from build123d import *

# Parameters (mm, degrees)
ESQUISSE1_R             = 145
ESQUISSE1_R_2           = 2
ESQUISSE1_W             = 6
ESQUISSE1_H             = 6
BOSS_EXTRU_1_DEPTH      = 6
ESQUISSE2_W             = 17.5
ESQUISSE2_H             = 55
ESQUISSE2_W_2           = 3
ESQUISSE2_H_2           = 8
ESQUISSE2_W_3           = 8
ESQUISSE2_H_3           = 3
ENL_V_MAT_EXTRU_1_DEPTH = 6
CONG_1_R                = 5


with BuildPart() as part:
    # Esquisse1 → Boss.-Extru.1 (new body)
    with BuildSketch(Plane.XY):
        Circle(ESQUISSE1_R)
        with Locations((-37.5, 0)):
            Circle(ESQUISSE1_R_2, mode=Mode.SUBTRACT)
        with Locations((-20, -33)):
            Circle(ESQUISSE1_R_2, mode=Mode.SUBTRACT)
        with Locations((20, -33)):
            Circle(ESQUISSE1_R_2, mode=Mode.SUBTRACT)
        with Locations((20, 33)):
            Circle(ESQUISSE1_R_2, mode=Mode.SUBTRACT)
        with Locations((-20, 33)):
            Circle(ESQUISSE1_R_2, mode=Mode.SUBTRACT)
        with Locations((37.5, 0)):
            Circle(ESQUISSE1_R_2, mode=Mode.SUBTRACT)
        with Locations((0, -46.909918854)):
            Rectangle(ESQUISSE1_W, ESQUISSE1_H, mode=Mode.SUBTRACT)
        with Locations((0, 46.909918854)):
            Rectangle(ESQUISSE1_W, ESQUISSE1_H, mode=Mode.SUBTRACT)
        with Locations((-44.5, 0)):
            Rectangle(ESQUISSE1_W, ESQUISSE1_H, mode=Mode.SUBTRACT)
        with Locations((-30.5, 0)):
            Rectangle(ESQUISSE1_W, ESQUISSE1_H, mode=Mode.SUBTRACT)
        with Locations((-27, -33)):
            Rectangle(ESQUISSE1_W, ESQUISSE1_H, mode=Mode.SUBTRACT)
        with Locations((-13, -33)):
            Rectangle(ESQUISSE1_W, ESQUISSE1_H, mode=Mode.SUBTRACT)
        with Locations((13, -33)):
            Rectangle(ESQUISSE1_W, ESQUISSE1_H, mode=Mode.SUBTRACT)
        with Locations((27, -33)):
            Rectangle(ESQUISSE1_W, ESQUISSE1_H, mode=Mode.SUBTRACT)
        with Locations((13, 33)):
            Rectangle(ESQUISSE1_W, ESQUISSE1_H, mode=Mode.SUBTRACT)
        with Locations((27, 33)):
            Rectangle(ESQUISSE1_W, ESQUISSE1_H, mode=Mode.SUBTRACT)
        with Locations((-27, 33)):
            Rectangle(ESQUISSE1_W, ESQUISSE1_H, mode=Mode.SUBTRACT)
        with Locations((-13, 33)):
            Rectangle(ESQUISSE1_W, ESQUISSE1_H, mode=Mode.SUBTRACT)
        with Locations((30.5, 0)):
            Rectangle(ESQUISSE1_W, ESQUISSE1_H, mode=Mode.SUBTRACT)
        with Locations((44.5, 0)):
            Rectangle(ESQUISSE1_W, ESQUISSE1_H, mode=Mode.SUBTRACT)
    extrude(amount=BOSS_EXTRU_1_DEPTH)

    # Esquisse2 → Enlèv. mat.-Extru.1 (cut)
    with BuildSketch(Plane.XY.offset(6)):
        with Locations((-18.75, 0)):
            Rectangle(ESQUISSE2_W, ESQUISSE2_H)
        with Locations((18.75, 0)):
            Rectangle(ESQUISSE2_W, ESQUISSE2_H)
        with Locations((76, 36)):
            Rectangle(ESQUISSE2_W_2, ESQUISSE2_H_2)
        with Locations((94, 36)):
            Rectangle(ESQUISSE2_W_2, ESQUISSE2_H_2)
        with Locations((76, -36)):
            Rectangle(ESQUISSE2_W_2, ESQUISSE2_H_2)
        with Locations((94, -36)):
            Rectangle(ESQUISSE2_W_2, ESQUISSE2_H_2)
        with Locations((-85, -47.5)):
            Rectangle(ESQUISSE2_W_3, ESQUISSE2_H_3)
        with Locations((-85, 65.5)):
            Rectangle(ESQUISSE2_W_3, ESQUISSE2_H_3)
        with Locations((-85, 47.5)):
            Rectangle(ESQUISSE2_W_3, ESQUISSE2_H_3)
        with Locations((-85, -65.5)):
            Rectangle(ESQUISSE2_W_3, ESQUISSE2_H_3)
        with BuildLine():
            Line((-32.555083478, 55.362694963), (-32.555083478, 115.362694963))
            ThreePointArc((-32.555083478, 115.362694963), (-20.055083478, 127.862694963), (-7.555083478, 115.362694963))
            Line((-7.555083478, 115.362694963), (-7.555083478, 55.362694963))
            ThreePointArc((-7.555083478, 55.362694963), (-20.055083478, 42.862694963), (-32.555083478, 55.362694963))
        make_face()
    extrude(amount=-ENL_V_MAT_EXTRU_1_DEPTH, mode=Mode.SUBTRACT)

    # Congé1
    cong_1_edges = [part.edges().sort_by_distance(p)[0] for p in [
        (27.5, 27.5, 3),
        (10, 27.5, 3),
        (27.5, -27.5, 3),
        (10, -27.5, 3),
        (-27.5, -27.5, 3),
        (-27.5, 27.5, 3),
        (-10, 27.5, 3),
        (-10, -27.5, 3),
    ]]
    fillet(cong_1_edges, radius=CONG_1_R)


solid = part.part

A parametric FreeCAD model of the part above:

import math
import FreeCAD as App
import Part
import Sketcher

V = App.Vector
Q = App.Units.Quantity


def edges_at(feature, points):
    """Names of the edges that pass closest to the given points."""
    edges = feature.Shape.Edges
    near = lambda p: min(range(len(edges)), key=lambda i: edges[i].distToShape(Part.Vertex(*p))[0])
    return sorted({f"Edge{near(p) + 1}" for p in points})

doc = App.newDocument("Part")
params = doc.addObject("Spreadsheet::Sheet", "Params")
for row, (alias, value) in enumerate([
    ("sketch1_diameter", "290 mm"),
    ("sketch1_diameter2", "4 mm"),
    ("sketch1_width", "6 mm"),
    ("pad1_length", "6 mm"),
    ("sketch2_radius", "12.5 mm"),
    ("sketch2_width", "3 mm"),
    ("sketch2_width2", "8 mm"),
    ("sketch2_height", "55 mm"),
    ("sketch2_height2", "60 mm"),
    ("pocket1_length", "6 mm"),
    ("fillet_radius", "5 mm"),
], start=1):
    params.set(f"A{row}", alias)
    params.set(f"B{row}", "=" + value)
    params.setAlias(f"B{row}", alias)

body = doc.addObject("PartDesign::Body", "Body")

sketch1 = body.newObject("Sketcher::SketchObject", "Sketch")
sketch1.AttachmentSupport = (doc.getObject("XY_Plane"), [""])
sketch1.MapMode = "FlatFace"
sketch1.addGeometry(Part.Circle(V(0, 0, 0), V(0, 0, 1), 145), False)
sketch1.addGeometry(Part.LineSegment(V(-24, -36, 0), V(-30, -36, 0)), False)
sketch1.addGeometry(Part.LineSegment(V(-30, -36, 0), V(-30, -30, 0)), False)
sketch1.addGeometry(Part.LineSegment(V(-30, -30, 0), V(-24, -30, 0)), False)
sketch1.addGeometry(Part.LineSegment(V(-24, -30, 0), V(-24, -36, 0)), False)
sketch1.addGeometry(Part.Circle(V(-20, -33, 0), V(0, 0, 1), 2), False)
sketch1.addGeometry(Part.LineSegment(V(-10, -36, 0), V(-16, -36, 0)), False)
sketch1.addGeometry(Part.LineSegment(V(-16, -36, 0), V(-16, -30, 0)), False)
sketch1.addGeometry(Part.LineSegment(V(-16, -30, 0), V(-10, -30, 0)), False)
sketch1.addGeometry(Part.LineSegment(V(-10, -30, 0), V(-10, -36, 0)), False)
sketch1.addGeometry(Part.LineSegment(V(3, -49.9, 0), V(-3, -49.9, 0)), False)
sketch1.addGeometry(Part.LineSegment(V(-3, -49.9, 0), V(-3, -43.9, 0)), False)
sketch1.addGeometry(Part.LineSegment(V(-3, -43.9, 0), V(3, -43.9, 0)), False)
sketch1.addGeometry(Part.LineSegment(V(3, -43.9, 0), V(3, -49.9, 0)), False)
sketch1.addGeometry(Part.LineSegment(V(16, -36, 0), V(10, -36, 0)), False)
sketch1.addGeometry(Part.LineSegment(V(10, -36, 0), V(10, -30, 0)), False)
sketch1.addGeometry(Part.LineSegment(V(10, -30, 0), V(16, -30, 0)), False)
sketch1.addGeometry(Part.LineSegment(V(16, -30, 0), V(16, -36, 0)), False)
sketch1.addGeometry(Part.Circle(V(20, -33, 0), V(0, 0, 1), 2), False)
sketch1.addGeometry(Part.LineSegment(V(30, -36, 0), V(24, -36, 0)), False)
sketch1.addGeometry(Part.LineSegment(V(24, -36, 0), V(24, -30, 0)), False)
sketch1.addGeometry(Part.LineSegment(V(24, -30, 0), V(30, -30, 0)), False)
sketch1.addGeometry(Part.LineSegment(V(30, -30, 0), V(30, -36, 0)), False)
sketch1.addGeometry(Part.LineSegment(V(-41.5, -3, 0), V(-47.5, -3, 0)), False)
sketch1.addGeometry(Part.LineSegment(V(-47.5, -3, 0), V(-47.5, 3, 0)), False)
sketch1.addGeometry(Part.LineSegment(V(-47.5, 3, 0), V(-41.5, 3, 0)), False)
sketch1.addGeometry(Part.LineSegment(V(-41.5, 3, 0), V(-41.5, -3, 0)), False)
sketch1.addGeometry(Part.Circle(V(-37.5, 0, 0), V(0, 0, 1), 2), False)
sketch1.addGeometry(Part.LineSegment(V(-27.5, -3, 0), V(-33.5, -3, 0)), False)
sketch1.addGeometry(Part.LineSegment(V(-33.5, -3, 0), V(-33.5, 3, 0)), False)
sketch1.addGeometry(Part.LineSegment(V(-33.5, 3, 0), V(-27.5, 3, 0)), False)
sketch1.addGeometry(Part.LineSegment(V(-27.5, 3, 0), V(-27.5, -3, 0)), False)
sketch1.addGeometry(Part.LineSegment(V(-24, 30, 0), V(-30, 30, 0)), False)
sketch1.addGeometry(Part.LineSegment(V(-30, 30, 0), V(-30, 36, 0)), False)
sketch1.addGeometry(Part.LineSegment(V(-30, 36, 0), V(-24, 36, 0)), False)
sketch1.addGeometry(Part.LineSegment(V(-24, 36, 0), V(-24, 30, 0)), False)
sketch1.addGeometry(Part.Circle(V(-20, 33, 0), V(0, 0, 1), 2), False)
sketch1.addGeometry(Part.LineSegment(V(-10, 30, 0), V(-16, 30, 0)), False)
sketch1.addGeometry(Part.LineSegment(V(-16, 30, 0), V(-16, 36, 0)), False)
sketch1.addGeometry(Part.LineSegment(V(-16, 36, 0), V(-10, 36, 0)), False)
sketch1.addGeometry(Part.LineSegment(V(-10, 36, 0), V(-10, 30, 0)), False)
sketch1.addGeometry(Part.LineSegment(V(33.5, -3, 0), V(27.5, -3, 0)), False)
sketch1.addGeometry(Part.LineSegment(V(27.5, -3, 0), V(27.5, 3, 0)), False)
sketch1.addGeometry(Part.LineSegment(V(27.5, 3, 0), V(33.5, 3, 0)), False)
sketch1.addGeometry(Part.LineSegment(V(33.5, 3, 0), V(33.5, -3, 0)), False)
sketch1.addGeometry(Part.Circle(V(37.5, 0, 0), V(0, 0, 1), 2), False)
sketch1.addGeometry(Part.LineSegment(V(47.5, -3, 0), V(41.5, -3, 0)), False)
sketch1.addGeometry(Part.LineSegment(V(41.5, -3, 0), V(41.5, 3, 0)), False)
sketch1.addGeometry(Part.LineSegment(V(41.5, 3, 0), V(47.5, 3, 0)), False)
sketch1.addGeometry(Part.LineSegment(V(47.5, 3, 0), V(47.5, -3, 0)), False)
sketch1.addGeometry(Part.LineSegment(V(16, 30, 0), V(10, 30, 0)), False)
sketch1.addGeometry(Part.LineSegment(V(10, 30, 0), V(10, 36, 0)), False)
sketch1.addGeometry(Part.LineSegment(V(10, 36, 0), V(16, 36, 0)), False)
sketch1.addGeometry(Part.LineSegment(V(16, 36, 0), V(16, 30, 0)), False)
sketch1.addGeometry(Part.Circle(V(20, 33, 0), V(0, 0, 1), 2), False)
sketch1.addGeometry(Part.LineSegment(V(3, 43.9, 0), V(-3, 43.9, 0)), False)
sketch1.addGeometry(Part.LineSegment(V(-3, 43.9, 0), V(-3, 49.9, 0)), False)
sketch1.addGeometry(Part.LineSegment(V(-3, 49.9, 0), V(3, 49.9, 0)), False)
sketch1.addGeometry(Part.LineSegment(V(3, 49.9, 0), V(3, 43.9, 0)), False)
sketch1.addGeometry(Part.LineSegment(V(30, 30, 0), V(24, 30, 0)), False)
sketch1.addGeometry(Part.LineSegment(V(24, 30, 0), V(24, 36, 0)), False)
sketch1.addGeometry(Part.LineSegment(V(24, 36, 0), V(30, 36, 0)), False)
sketch1.addGeometry(Part.LineSegment(V(30, 36, 0), V(30, 30, 0)), False)
sketch1.addConstraint(Sketcher.Constraint("Coincident", 1, 2, 2, 1))
sketch1.addConstraint(Sketcher.Constraint("Coincident", 2, 2, 3, 1))
sketch1.addConstraint(Sketcher.Constraint("Coincident", 3, 2, 4, 1))
sketch1.addConstraint(Sketcher.Constraint("Coincident", 4, 2, 1, 1))
sketch1.addConstraint(Sketcher.Constraint("Coincident", 6, 2, 7, 1))
sketch1.addConstraint(Sketcher.Constraint("Coincident", 7, 2, 8, 1))
sketch1.addConstraint(Sketcher.Constraint("Coincident", 8, 2, 9, 1))
sketch1.addConstraint(Sketcher.Constraint("Coincident", 9, 2, 6, 1))
sketch1.addConstraint(Sketcher.Constraint("Coincident", 10, 2, 11, 1))
sketch1.addConstraint(Sketcher.Constraint("Coincident", 11, 2, 12, 1))
sketch1.addConstraint(Sketcher.Constraint("Coincident", 12, 2, 13, 1))
sketch1.addConstraint(Sketcher.Constraint("Coincident", 13, 2, 10, 1))
sketch1.addConstraint(Sketcher.Constraint("Coincident", 14, 2, 15, 1))
sketch1.addConstraint(Sketcher.Constraint("Coincident", 15, 2, 16, 1))
sketch1.addConstraint(Sketcher.Constraint("Coincident", 16, 2, 17, 1))
sketch1.addConstraint(Sketcher.Constraint("Coincident", 17, 2, 14, 1))
sketch1.addConstraint(Sketcher.Constraint("Coincident", 19, 2, 20, 1))
sketch1.addConstraint(Sketcher.Constraint("Coincident", 20, 2, 21, 1))
sketch1.addConstraint(Sketcher.Constraint("Coincident", 21, 2, 22, 1))
sketch1.addConstraint(Sketcher.Constraint("Coincident", 22, 2, 19, 1))
sketch1.addConstraint(Sketcher.Constraint("Coincident", 23, 2, 24, 1))
sketch1.addConstraint(Sketcher.Constraint("Coincident", 24, 2, 25, 1))
sketch1.addConstraint(Sketcher.Constraint("Coincident", 25, 2, 26, 1))
sketch1.addConstraint(Sketcher.Constraint("Coincident", 26, 2, 23, 1))
sketch1.addConstraint(Sketcher.Constraint("Coincident", 28, 2, 29, 1))
sketch1.addConstraint(Sketcher.Constraint("Coincident", 29, 2, 30, 1))
sketch1.addConstraint(Sketcher.Constraint("Coincident", 30, 2, 31, 1))
sketch1.addConstraint(Sketcher.Constraint("Coincident", 31, 2, 28, 1))
sketch1.addConstraint(Sketcher.Constraint("Coincident", 32, 2, 33, 1))
sketch1.addConstraint(Sketcher.Constraint("Coincident", 33, 2, 34, 1))
sketch1.addConstraint(Sketcher.Constraint("Coincident", 34, 2, 35, 1))
sketch1.addConstraint(Sketcher.Constraint("Coincident", 35, 2, 32, 1))
sketch1.addConstraint(Sketcher.Constraint("Coincident", 37, 2, 38, 1))
sketch1.addConstraint(Sketcher.Constraint("Coincident", 38, 2, 39, 1))
sketch1.addConstraint(Sketcher.Constraint("Coincident", 39, 2, 40, 1))
sketch1.addConstraint(Sketcher.Constraint("Coincident", 40, 2, 37, 1))
sketch1.addConstraint(Sketcher.Constraint("Coincident", 41, 2, 42, 1))
sketch1.addConstraint(Sketcher.Constraint("Coincident", 42, 2, 43, 1))
sketch1.addConstraint(Sketcher.Constraint("Coincident", 43, 2, 44, 1))
sketch1.addConstraint(Sketcher.Constraint("Coincident", 44, 2, 41, 1))
sketch1.addConstraint(Sketcher.Constraint("Coincident", 46, 2, 47, 1))
sketch1.addConstraint(Sketcher.Constraint("Coincident", 47, 2, 48, 1))
sketch1.addConstraint(Sketcher.Constraint("Coincident", 48, 2, 49, 1))
sketch1.addConstraint(Sketcher.Constraint("Coincident", 49, 2, 46, 1))
sketch1.addConstraint(Sketcher.Constraint("Coincident", 50, 2, 51, 1))
sketch1.addConstraint(Sketcher.Constraint("Coincident", 51, 2, 52, 1))
sketch1.addConstraint(Sketcher.Constraint("Coincident", 52, 2, 53, 1))
sketch1.addConstraint(Sketcher.Constraint("Coincident", 53, 2, 50, 1))
sketch1.addConstraint(Sketcher.Constraint("Coincident", 55, 2, 56, 1))
sketch1.addConstraint(Sketcher.Constraint("Coincident", 56, 2, 57, 1))
sketch1.addConstraint(Sketcher.Constraint("Coincident", 57, 2, 58, 1))
sketch1.addConstraint(Sketcher.Constraint("Coincident", 58, 2, 55, 1))
sketch1.addConstraint(Sketcher.Constraint("Coincident", 59, 2, 60, 1))
sketch1.addConstraint(Sketcher.Constraint("Coincident", 60, 2, 61, 1))
sketch1.addConstraint(Sketcher.Constraint("Coincident", 61, 2, 62, 1))
sketch1.addConstraint(Sketcher.Constraint("Coincident", 62, 2, 59, 1))
sketch1.addConstraint(Sketcher.Constraint("Horizontal", 1))
sketch1.addConstraint(Sketcher.Constraint("Vertical", 2))
sketch1.addConstraint(Sketcher.Constraint("Horizontal", 3))
sketch1.addConstraint(Sketcher.Constraint("Vertical", 4))
sketch1.addConstraint(Sketcher.Constraint("Horizontal", 6))
sketch1.addConstraint(Sketcher.Constraint("Vertical", 7))
sketch1.addConstraint(Sketcher.Constraint("Horizontal", 8))
sketch1.addConstraint(Sketcher.Constraint("Vertical", 9))
sketch1.addConstraint(Sketcher.Constraint("Horizontal", 10))
sketch1.addConstraint(Sketcher.Constraint("Vertical", 11))
sketch1.addConstraint(Sketcher.Constraint("Horizontal", 12))
sketch1.addConstraint(Sketcher.Constraint("Vertical", 13))
sketch1.addConstraint(Sketcher.Constraint("Horizontal", 14))
sketch1.addConstraint(Sketcher.Constraint("Vertical", 15))
sketch1.addConstraint(Sketcher.Constraint("Horizontal", 16))
sketch1.addConstraint(Sketcher.Constraint("Vertical", 17))
sketch1.addConstraint(Sketcher.Constraint("Horizontal", 19))
sketch1.addConstraint(Sketcher.Constraint("Vertical", 20))
sketch1.addConstraint(Sketcher.Constraint("Horizontal", 21))
sketch1.addConstraint(Sketcher.Constraint("Vertical", 22))
sketch1.addConstraint(Sketcher.Constraint("Horizontal", 23))
sketch1.addConstraint(Sketcher.Constraint("Vertical", 24))
sketch1.addConstraint(Sketcher.Constraint("Horizontal", 25))
sketch1.addConstraint(Sketcher.Constraint("Vertical", 26))
sketch1.addConstraint(Sketcher.Constraint("Horizontal", 28))
sketch1.addConstraint(Sketcher.Constraint("Vertical", 29))
sketch1.addConstraint(Sketcher.Constraint("Horizontal", 30))
sketch1.addConstraint(Sketcher.Constraint("Vertical", 31))
sketch1.addConstraint(Sketcher.Constraint("Horizontal", 32))
sketch1.addConstraint(Sketcher.Constraint("Vertical", 33))
sketch1.addConstraint(Sketcher.Constraint("Horizontal", 34))
sketch1.addConstraint(Sketcher.Constraint("Vertical", 35))
sketch1.addConstraint(Sketcher.Constraint("Horizontal", 37))
sketch1.addConstraint(Sketcher.Constraint("Vertical", 38))
sketch1.addConstraint(Sketcher.Constraint("Horizontal", 39))
sketch1.addConstraint(Sketcher.Constraint("Vertical", 40))
sketch1.addConstraint(Sketcher.Constraint("Horizontal", 41))
sketch1.addConstraint(Sketcher.Constraint("Vertical", 42))
sketch1.addConstraint(Sketcher.Constraint("Horizontal", 43))
sketch1.addConstraint(Sketcher.Constraint("Vertical", 44))
sketch1.addConstraint(Sketcher.Constraint("Horizontal", 46))
sketch1.addConstraint(Sketcher.Constraint("Vertical", 47))
sketch1.addConstraint(Sketcher.Constraint("Horizontal", 48))
sketch1.addConstraint(Sketcher.Constraint("Vertical", 49))
sketch1.addConstraint(Sketcher.Constraint("Horizontal", 50))
sketch1.addConstraint(Sketcher.Constraint("Vertical", 51))
sketch1.addConstraint(Sketcher.Constraint("Horizontal", 52))
sketch1.addConstraint(Sketcher.Constraint("Vertical", 53))
sketch1.addConstraint(Sketcher.Constraint("Horizontal", 55))
sketch1.addConstraint(Sketcher.Constraint("Vertical", 56))
sketch1.addConstraint(Sketcher.Constraint("Horizontal", 57))
sketch1.addConstraint(Sketcher.Constraint("Vertical", 58))
sketch1.addConstraint(Sketcher.Constraint("Horizontal", 59))
sketch1.addConstraint(Sketcher.Constraint("Vertical", 60))
sketch1.addConstraint(Sketcher.Constraint("Horizontal", 61))
sketch1.addConstraint(Sketcher.Constraint("Vertical", 62))
sketch1.addConstraint(Sketcher.Constraint("Coincident", 0, 3, -1, 1))
sketch1.addConstraint(Sketcher.Constraint("Equal", 5, 18))
sketch1.addConstraint(Sketcher.Constraint("Equal", 18, 27))
sketch1.addConstraint(Sketcher.Constraint("Equal", 27, 36))
sketch1.addConstraint(Sketcher.Constraint("Equal", 36, 45))
sketch1.addConstraint(Sketcher.Constraint("Equal", 45, 54))
sketch1.addConstraint(Sketcher.Constraint("Symmetric", 18, 3, 36, 3, -1, 1))
sketch1.addConstraint(Sketcher.Constraint("Symmetric", 27, 3, 45, 3, -1, 1))
sketch1.addConstraint(Sketcher.Constraint("Symmetric", 5, 3, 54, 3, -1, 1))
sketch1.addConstraint(Sketcher.Constraint("Symmetric", 21, 2, 32, 2, -1, 1))
sketch1.addConstraint(Sketcher.Constraint("Symmetric", 19, 2, 34, 2, -1, 1))
sketch1.addConstraint(Sketcher.Constraint("Symmetric", 16, 2, 37, 2, -1, 1))
sketch1.addConstraint(Sketcher.Constraint("Symmetric", 14, 2, 39, 2, -1, 1))
sketch1.addConstraint(Sketcher.Constraint("Symmetric", 30, 2, 41, 2, -1, 1))
sketch1.addConstraint(Sketcher.Constraint("Symmetric", 28, 2, 43, 2, -1, 1))
sketch1.addConstraint(Sketcher.Constraint("Symmetric", 25, 2, 46, 2, -1, 1))
sketch1.addConstraint(Sketcher.Constraint("Symmetric", 23, 2, 48, 2, -1, 1))
sketch1.addConstraint(Sketcher.Constraint("Symmetric", 8, 2, 50, 2, -1, 1))
sketch1.addConstraint(Sketcher.Constraint("Symmetric", 6, 2, 52, 2, -1, 1))
sketch1.addConstraint(Sketcher.Constraint("Symmetric", 12, 2, 55, 2, -1, 1))
sketch1.addConstraint(Sketcher.Constraint("Symmetric", 10, 2, 57, 2, -1, 1))
sketch1.addConstraint(Sketcher.Constraint("Symmetric", 3, 2, 59, 2, -1, 1))
sketch1.addConstraint(Sketcher.Constraint("Symmetric", 1, 2, 61, 2, -1, 1))
sketch1.addConstraint(Sketcher.Constraint("Symmetric", 5, 3, 18, 3, -2))
sketch1.addConstraint(Sketcher.Constraint("Symmetric", 9, 2, 14, 2, -2))
sketch1.addConstraint(Sketcher.Constraint("Symmetric", 7, 2, 16, 2, -2))
sketch1.addConstraint(Sketcher.Constraint("Symmetric", 4, 2, 19, 2, -2))
sketch1.addConstraint(Sketcher.Constraint("Symmetric", 2, 2, 21, 2, -2))
sketch1.addConstraint(Sketcher.Constraint("PointOnObject", 27, 3, -1))
sketch1.addConstraint(Sketcher.Constraint("Horizontal", 4, 2, 6, 2))
sketch1.addConstraint(Sketcher.Constraint("Horizontal", 3, 2, 7, 2))
sketch1.addConstraint(Sketcher.Constraint("Horizontal", 26, 2, 28, 2))
sketch1.addConstraint(Sketcher.Constraint("Horizontal", 25, 2, 29, 2))
sketch1.addConstraint(Sketcher.Constraint("Horizontal", 31, 2, 41, 2))
sketch1.addConstraint(Sketcher.Constraint("Vertical", 11, 2, 55, 2))
sketch1.addConstraint(Sketcher.Constraint("Equal", 3, 6))
sketch1.addConstraint(Sketcher.Constraint("Equal", 8, 10))
sketch1.addConstraint(Sketcher.Constraint("Equal", 21, 23))
sketch1.addConstraint(Sketcher.Constraint("Equal", 25, 28))
sketch1.addConstraint(Sketcher.Constraint("Equal", 61, 2))
sketch1.addConstraint(Sketcher.Constraint("Equal", 9, 11))
sketch1.addConstraint(Sketcher.Constraint("Equal", 22, 24))
sketch1.addConstraint(Sketcher.Constraint("Diameter", 0, Q("290 mm")))
sketch1.addConstraint(Sketcher.Constraint("Diameter", 5, Q("4 mm")))
sketch1.addConstraint(Sketcher.Constraint("DistanceX", 1, 2, 1, 1, Q("6 mm")))
sketch1.addConstraint(Sketcher.Constraint("DistanceX", 5, 3, -1, 1, Q("20 mm")))
sketch1.addConstraint(Sketcher.Constraint("DistanceY", 5, 3, -1, 1, Q("33 mm")))
sketch1.addConstraint(Sketcher.Constraint("DistanceX", 1, 2, -1, 1, Q("30 mm")))
sketch1.addConstraint(Sketcher.Constraint("DistanceY", 1, 2, -1, 1, Q("36 mm")))
sketch1.addConstraint(Sketcher.Constraint("DistanceX", 6, 2, -1, 1, Q("16 mm")))
sketch1.addConstraint(Sketcher.Constraint("DistanceX", 27, 3, -1, 1, Q("37.5 mm")))
sketch1.addConstraint(Sketcher.Constraint("DistanceX", 23, 2, -1, 1, Q("47.5 mm")))
sketch1.addConstraint(Sketcher.Constraint("DistanceX", 28, 2, -1, 1, Q("33.5 mm")))
sketch1.addConstraint(Sketcher.Constraint("DistanceY", 10, 2, -1, 1, Q("49.909919 mm")))
sketch1.setExpression("Constraints[154]", "Params.sketch1_diameter")
sketch1.setExpression("Constraints[155]", "Params.sketch1_diameter2")
sketch1.setExpression("Constraints[156]", "Params.sketch1_width")
pad1 = body.newObject("PartDesign::Pad", "Pad")
pad1.Profile = sketch1
pad1.setExpression("Length", "Params.pad1_length")

sketch2 = body.newObject("Sketcher::SketchObject", "Sketch001")
sketch2.AttachmentSupport = (doc.getObject("XY_Plane"), [""])
sketch2.MapMode = "FlatFace"
sketch2.AttachmentOffset = App.Placement(V(0, 0, 6), App.Rotation())
sketch2.addGeometry(Part.LineSegment(V(-27.5, 27.5, 0), V(-27.5, -27.5, 0)), False)
sketch2.addGeometry(Part.LineSegment(V(-27.5, -27.5, 0), V(-10, -27.5, 0)), False)
sketch2.addGeometry(Part.LineSegment(V(-10, -27.5, 0), V(-10, 27.5, 0)), False)
sketch2.addGeometry(Part.LineSegment(V(-10, 27.5, 0), V(-27.5, 27.5, 0)), False)
sketch2.addGeometry(Part.LineSegment(V(10, 27.5, 0), V(10, -27.5, 0)), False)
sketch2.addGeometry(Part.LineSegment(V(10, -27.5, 0), V(27.5, -27.5, 0)), False)
sketch2.addGeometry(Part.LineSegment(V(27.5, -27.5, 0), V(27.5, 27.5, 0)), False)
sketch2.addGeometry(Part.LineSegment(V(27.5, 27.5, 0), V(10, 27.5, 0)), False)
sketch2.addGeometry(Part.LineSegment(V(74.5, 40, 0), V(74.5, 32, 0)), False)
sketch2.addGeometry(Part.LineSegment(V(74.5, 32, 0), V(77.5, 32, 0)), False)
sketch2.addGeometry(Part.LineSegment(V(77.5, 32, 0), V(77.5, 40, 0)), False)
sketch2.addGeometry(Part.LineSegment(V(77.5, 40, 0), V(74.5, 40, 0)), False)
sketch2.addGeometry(Part.LineSegment(V(92.5, 40, 0), V(92.5, 32, 0)), False)
sketch2.addGeometry(Part.LineSegment(V(92.5, 32, 0), V(95.5, 32, 0)), False)
sketch2.addGeometry(Part.LineSegment(V(95.5, 32, 0), V(95.5, 40, 0)), False)
sketch2.addGeometry(Part.LineSegment(V(95.5, 40, 0), V(92.5, 40, 0)), False)
sketch2.addGeometry(Part.LineSegment(V(74.5, -32, 0), V(74.5, -40, 0)), False)
sketch2.addGeometry(Part.LineSegment(V(74.5, -40, 0), V(77.5, -40, 0)), False)
sketch2.addGeometry(Part.LineSegment(V(77.5, -40, 0), V(77.5, -32, 0)), False)
sketch2.addGeometry(Part.LineSegment(V(77.5, -32, 0), V(74.5, -32, 0)), False)
sketch2.addGeometry(Part.LineSegment(V(92.5, -32, 0), V(92.5, -40, 0)), False)
sketch2.addGeometry(Part.LineSegment(V(92.5, -40, 0), V(95.5, -40, 0)), False)
sketch2.addGeometry(Part.LineSegment(V(95.5, -40, 0), V(95.5, -32, 0)), False)
sketch2.addGeometry(Part.LineSegment(V(95.5, -32, 0), V(92.5, -32, 0)), False)
sketch2.addGeometry(Part.LineSegment(V(-89, -46, 0), V(-89, -49, 0)), False)
sketch2.addGeometry(Part.LineSegment(V(-89, -49, 0), V(-81, -49, 0)), False)
sketch2.addGeometry(Part.LineSegment(V(-81, -49, 0), V(-81, -46, 0)), False)
sketch2.addGeometry(Part.LineSegment(V(-81, -46, 0), V(-89, -46, 0)), False)
sketch2.addGeometry(Part.LineSegment(V(-89, 67, 0), V(-89, 64, 0)), False)
sketch2.addGeometry(Part.LineSegment(V(-89, 64, 0), V(-81, 64, 0)), False)
sketch2.addGeometry(Part.LineSegment(V(-81, 64, 0), V(-81, 67, 0)), False)
sketch2.addGeometry(Part.LineSegment(V(-81, 67, 0), V(-89, 67, 0)), False)
sketch2.addGeometry(Part.LineSegment(V(-89, 49, 0), V(-89, 46, 0)), False)
sketch2.addGeometry(Part.LineSegment(V(-89, 46, 0), V(-81, 46, 0)), False)
sketch2.addGeometry(Part.LineSegment(V(-81, 46, 0), V(-81, 49, 0)), False)
sketch2.addGeometry(Part.LineSegment(V(-81, 49, 0), V(-89, 49, 0)), False)
sketch2.addGeometry(Part.LineSegment(V(-89, -64, 0), V(-89, -67, 0)), False)
sketch2.addGeometry(Part.LineSegment(V(-89, -67, 0), V(-81, -67, 0)), False)
sketch2.addGeometry(Part.LineSegment(V(-81, -67, 0), V(-81, -64, 0)), False)
sketch2.addGeometry(Part.LineSegment(V(-81, -64, 0), V(-89, -64, 0)), False)
sketch2.addGeometry(Part.LineSegment(V(-32.6, 115.4, 0), V(-32.6, 55.4, 0)), False)
sketch2.addGeometry(Part.ArcOfCircle(Part.Circle(V(-20.1, 55.4, 0), V(0, 0, 1), 12.5), math.radians(180), math.radians(360)), False)
sketch2.addGeometry(Part.LineSegment(V(-7.6, 55.4, 0), V(-7.6, 115.4, 0)), False)
sketch2.addGeometry(Part.ArcOfCircle(Part.Circle(V(-20.1, 115.4, 0), V(0, 0, 1), 12.5), math.radians(0), math.radians(180)), False)
sketch2.addConstraint(Sketcher.Constraint("Coincident", 0, 2, 1, 1))
sketch2.addConstraint(Sketcher.Constraint("Coincident", 1, 2, 2, 1))
sketch2.addConstraint(Sketcher.Constraint("Coincident", 2, 2, 3, 1))
sketch2.addConstraint(Sketcher.Constraint("Coincident", 3, 2, 0, 1))
sketch2.addConstraint(Sketcher.Constraint("Coincident", 4, 2, 5, 1))
sketch2.addConstraint(Sketcher.Constraint("Coincident", 5, 2, 6, 1))
sketch2.addConstraint(Sketcher.Constraint("Coincident", 6, 2, 7, 1))
sketch2.addConstraint(Sketcher.Constraint("Coincident", 7, 2, 4, 1))
sketch2.addConstraint(Sketcher.Constraint("Coincident", 8, 2, 9, 1))
sketch2.addConstraint(Sketcher.Constraint("Coincident", 9, 2, 10, 1))
sketch2.addConstraint(Sketcher.Constraint("Coincident", 10, 2, 11, 1))
sketch2.addConstraint(Sketcher.Constraint("Coincident", 11, 2, 8, 1))
sketch2.addConstraint(Sketcher.Constraint("Coincident", 12, 2, 13, 1))
sketch2.addConstraint(Sketcher.Constraint("Coincident", 13, 2, 14, 1))
sketch2.addConstraint(Sketcher.Constraint("Coincident", 14, 2, 15, 1))
sketch2.addConstraint(Sketcher.Constraint("Coincident", 15, 2, 12, 1))
sketch2.addConstraint(Sketcher.Constraint("Coincident", 16, 2, 17, 1))
sketch2.addConstraint(Sketcher.Constraint("Coincident", 17, 2, 18, 1))
sketch2.addConstraint(Sketcher.Constraint("Coincident", 18, 2, 19, 1))
sketch2.addConstraint(Sketcher.Constraint("Coincident", 19, 2, 16, 1))
sketch2.addConstraint(Sketcher.Constraint("Coincident", 20, 2, 21, 1))
sketch2.addConstraint(Sketcher.Constraint("Coincident", 21, 2, 22, 1))
sketch2.addConstraint(Sketcher.Constraint("Coincident", 22, 2, 23, 1))
sketch2.addConstraint(Sketcher.Constraint("Coincident", 23, 2, 20, 1))
sketch2.addConstraint(Sketcher.Constraint("Coincident", 24, 2, 25, 1))
sketch2.addConstraint(Sketcher.Constraint("Coincident", 25, 2, 26, 1))
sketch2.addConstraint(Sketcher.Constraint("Coincident", 26, 2, 27, 1))
sketch2.addConstraint(Sketcher.Constraint("Coincident", 27, 2, 24, 1))
sketch2.addConstraint(Sketcher.Constraint("Coincident", 28, 2, 29, 1))
sketch2.addConstraint(Sketcher.Constraint("Coincident", 29, 2, 30, 1))
sketch2.addConstraint(Sketcher.Constraint("Coincident", 30, 2, 31, 1))
sketch2.addConstraint(Sketcher.Constraint("Coincident", 31, 2, 28, 1))
sketch2.addConstraint(Sketcher.Constraint("Coincident", 32, 2, 33, 1))
sketch2.addConstraint(Sketcher.Constraint("Coincident", 33, 2, 34, 1))
sketch2.addConstraint(Sketcher.Constraint("Coincident", 34, 2, 35, 1))
sketch2.addConstraint(Sketcher.Constraint("Coincident", 35, 2, 32, 1))
sketch2.addConstraint(Sketcher.Constraint("Coincident", 36, 2, 37, 1))
sketch2.addConstraint(Sketcher.Constraint("Coincident", 37, 2, 38, 1))
sketch2.addConstraint(Sketcher.Constraint("Coincident", 38, 2, 39, 1))
sketch2.addConstraint(Sketcher.Constraint("Coincident", 39, 2, 36, 1))
sketch2.addConstraint(Sketcher.Constraint("Tangent", 40, 2, 41, 1))
sketch2.addConstraint(Sketcher.Constraint("Tangent", 41, 2, 42, 1))
sketch2.addConstraint(Sketcher.Constraint("Tangent", 42, 2, 43, 1))
sketch2.addConstraint(Sketcher.Constraint("Tangent", 43, 2, 40, 1))
sketch2.addConstraint(Sketcher.Constraint("Vertical", 0))
sketch2.addConstraint(Sketcher.Constraint("Horizontal", 1))
sketch2.addConstraint(Sketcher.Constraint("Vertical", 2))
sketch2.addConstraint(Sketcher.Constraint("Horizontal", 3))
sketch2.addConstraint(Sketcher.Constraint("Vertical", 4))
sketch2.addConstraint(Sketcher.Constraint("Horizontal", 5))
sketch2.addConstraint(Sketcher.Constraint("Vertical", 6))
sketch2.addConstraint(Sketcher.Constraint("Horizontal", 7))
sketch2.addConstraint(Sketcher.Constraint("Vertical", 8))
sketch2.addConstraint(Sketcher.Constraint("Horizontal", 9))
sketch2.addConstraint(Sketcher.Constraint("Vertical", 10))
sketch2.addConstraint(Sketcher.Constraint("Horizontal", 11))
sketch2.addConstraint(Sketcher.Constraint("Vertical", 12))
sketch2.addConstraint(Sketcher.Constraint("Horizontal", 13))
sketch2.addConstraint(Sketcher.Constraint("Vertical", 14))
sketch2.addConstraint(Sketcher.Constraint("Horizontal", 15))
sketch2.addConstraint(Sketcher.Constraint("Vertical", 16))
sketch2.addConstraint(Sketcher.Constraint("Horizontal", 17))
sketch2.addConstraint(Sketcher.Constraint("Vertical", 18))
sketch2.addConstraint(Sketcher.Constraint("Horizontal", 19))
sketch2.addConstraint(Sketcher.Constraint("Vertical", 20))
sketch2.addConstraint(Sketcher.Constraint("Horizontal", 21))
sketch2.addConstraint(Sketcher.Constraint("Vertical", 22))
sketch2.addConstraint(Sketcher.Constraint("Horizontal", 23))
sketch2.addConstraint(Sketcher.Constraint("Vertical", 24))
sketch2.addConstraint(Sketcher.Constraint("Horizontal", 25))
sketch2.addConstraint(Sketcher.Constraint("Vertical", 26))
sketch2.addConstraint(Sketcher.Constraint("Horizontal", 27))
sketch2.addConstraint(Sketcher.Constraint("Vertical", 28))
sketch2.addConstraint(Sketcher.Constraint("Horizontal", 29))
sketch2.addConstraint(Sketcher.Constraint("Vertical", 30))
sketch2.addConstraint(Sketcher.Constraint("Horizontal", 31))
sketch2.addConstraint(Sketcher.Constraint("Vertical", 32))
sketch2.addConstraint(Sketcher.Constraint("Horizontal", 33))
sketch2.addConstraint(Sketcher.Constraint("Vertical", 34))
sketch2.addConstraint(Sketcher.Constraint("Horizontal", 35))
sketch2.addConstraint(Sketcher.Constraint("Vertical", 36))
sketch2.addConstraint(Sketcher.Constraint("Horizontal", 37))
sketch2.addConstraint(Sketcher.Constraint("Vertical", 38))
sketch2.addConstraint(Sketcher.Constraint("Horizontal", 39))
sketch2.addConstraint(Sketcher.Constraint("Vertical", 40))
sketch2.addConstraint(Sketcher.Constraint("Vertical", 42))
sketch2.addConstraint(Sketcher.Constraint("Symmetric", 2, 2, 4, 2, -1, 1))
sketch2.addConstraint(Sketcher.Constraint("Symmetric", 0, 2, 6, 2, -1, 1))
sketch2.addConstraint(Sketcher.Constraint("Symmetric", 11, 2, 16, 2, -1))
sketch2.addConstraint(Sketcher.Constraint("Symmetric", 9, 2, 18, 2, -1))
sketch2.addConstraint(Sketcher.Constraint("Symmetric", 15, 2, 20, 2, -1))
sketch2.addConstraint(Sketcher.Constraint("Symmetric", 13, 2, 22, 2, -1))
sketch2.addConstraint(Sketcher.Constraint("Symmetric", 27, 2, 32, 2, -1))
sketch2.addConstraint(Sketcher.Constraint("Symmetric", 25, 2, 34, 2, -1))
sketch2.addConstraint(Sketcher.Constraint("Symmetric", 31, 2, 36, 2, -1))
sketch2.addConstraint(Sketcher.Constraint("Symmetric", 29, 2, 38, 2, -1))
sketch2.addConstraint(Sketcher.Constraint("Horizontal", 1, 2, 4, 2))
sketch2.addConstraint(Sketcher.Constraint("Horizontal", 9, 2, 12, 2))
sketch2.addConstraint(Sketcher.Constraint("Horizontal", 11, 2, 14, 2))
sketch2.addConstraint(Sketcher.Constraint("Vertical", 27, 2, 28, 2))
sketch2.addConstraint(Sketcher.Constraint("Vertical", 26, 2, 29, 2))
sketch2.addConstraint(Sketcher.Constraint("Equal", 11, 13))
sketch2.addConstraint(Sketcher.Constraint("Equal", 39, 8))
sketch2.addConstraint(Sketcher.Constraint("Equal", 23, 24))
sketch2.addConstraint(Sketcher.Constraint("Equal", 26, 28))
sketch2.addConstraint(Sketcher.Constraint("Radius", 41, Q("12.5 mm")))
sketch2.addConstraint(Sketcher.Constraint("DistanceX", 9, 1, 9, 2, Q("3 mm")))
sketch2.addConstraint(Sketcher.Constraint("DistanceX", 25, 1, 25, 2, Q("8 mm")))
sketch2.addConstraint(Sketcher.Constraint("DistanceY", 0, 2, 0, 1, Q("55 mm")))
sketch2.addConstraint(Sketcher.Constraint("DistanceY", 40, 2, 40, 1, Q("60 mm")))
sketch2.addConstraint(Sketcher.Constraint("DistanceX", 1, 1, 1, 2, Q("17.5 mm")))
sketch2.addConstraint(Sketcher.Constraint("DistanceX", 1, 2, -1, 1, Q("10 mm")))
sketch2.addConstraint(Sketcher.Constraint("DistanceY", -1, 1, 8, 2, Q("32 mm")))
sketch2.addConstraint(Sketcher.Constraint("DistanceX", 24, 2, -1, 1, Q("89 mm")))
sketch2.addConstraint(Sketcher.Constraint("DistanceY", 24, 2, -1, 1, Q("49 mm")))
sketch2.addConstraint(Sketcher.Constraint("DistanceY", -1, 1, 28, 2, Q("64 mm")))
sketch2.addConstraint(Sketcher.Constraint("DistanceX", 6, 2, 8, 2, Q("47 mm")))
sketch2.addConstraint(Sketcher.Constraint("DistanceX", 9, 2, 12, 2, Q("15 mm")))
sketch2.addConstraint(Sketcher.Constraint("DistanceX", 41, 3, -1, 1, Q("20.055083 mm")))
sketch2.addConstraint(Sketcher.Constraint("DistanceY", -1, 1, 41, 3, Q("55.362695 mm")))
sketch2.setExpression("Constraints[105]", "Params.sketch2_radius")
sketch2.setExpression("Constraints[106]", "Params.sketch2_width")
sketch2.setExpression("Constraints[107]", "Params.sketch2_width2")
sketch2.setExpression("Constraints[108]", "Params.sketch2_height")
sketch2.setExpression("Constraints[109]", "Params.sketch2_height2")
pocket1 = body.newObject("PartDesign::Pocket", "Pocket")
pocket1.Profile = sketch2
pocket1.setExpression("Length", "Params.pocket1_length")
doc.recompute()

fillet = body.newObject("PartDesign::Fillet", "Fillet")
fillet.Base = (pocket1, edges_at(pocket1, [
    (27.5, 27.5, 3),
    (10, 27.5, 3),
    (27.5, -27.5, 3),
    (10, -27.5, 3),
    (-27.5, -27.5, 3),
    (-27.5, 27.5, 3),
    (-10, 27.5, 3),
    (-10, -27.5, 3),
]))
fillet.setExpression("Radius", "Params.fillet_radius")

doc.recompute()
